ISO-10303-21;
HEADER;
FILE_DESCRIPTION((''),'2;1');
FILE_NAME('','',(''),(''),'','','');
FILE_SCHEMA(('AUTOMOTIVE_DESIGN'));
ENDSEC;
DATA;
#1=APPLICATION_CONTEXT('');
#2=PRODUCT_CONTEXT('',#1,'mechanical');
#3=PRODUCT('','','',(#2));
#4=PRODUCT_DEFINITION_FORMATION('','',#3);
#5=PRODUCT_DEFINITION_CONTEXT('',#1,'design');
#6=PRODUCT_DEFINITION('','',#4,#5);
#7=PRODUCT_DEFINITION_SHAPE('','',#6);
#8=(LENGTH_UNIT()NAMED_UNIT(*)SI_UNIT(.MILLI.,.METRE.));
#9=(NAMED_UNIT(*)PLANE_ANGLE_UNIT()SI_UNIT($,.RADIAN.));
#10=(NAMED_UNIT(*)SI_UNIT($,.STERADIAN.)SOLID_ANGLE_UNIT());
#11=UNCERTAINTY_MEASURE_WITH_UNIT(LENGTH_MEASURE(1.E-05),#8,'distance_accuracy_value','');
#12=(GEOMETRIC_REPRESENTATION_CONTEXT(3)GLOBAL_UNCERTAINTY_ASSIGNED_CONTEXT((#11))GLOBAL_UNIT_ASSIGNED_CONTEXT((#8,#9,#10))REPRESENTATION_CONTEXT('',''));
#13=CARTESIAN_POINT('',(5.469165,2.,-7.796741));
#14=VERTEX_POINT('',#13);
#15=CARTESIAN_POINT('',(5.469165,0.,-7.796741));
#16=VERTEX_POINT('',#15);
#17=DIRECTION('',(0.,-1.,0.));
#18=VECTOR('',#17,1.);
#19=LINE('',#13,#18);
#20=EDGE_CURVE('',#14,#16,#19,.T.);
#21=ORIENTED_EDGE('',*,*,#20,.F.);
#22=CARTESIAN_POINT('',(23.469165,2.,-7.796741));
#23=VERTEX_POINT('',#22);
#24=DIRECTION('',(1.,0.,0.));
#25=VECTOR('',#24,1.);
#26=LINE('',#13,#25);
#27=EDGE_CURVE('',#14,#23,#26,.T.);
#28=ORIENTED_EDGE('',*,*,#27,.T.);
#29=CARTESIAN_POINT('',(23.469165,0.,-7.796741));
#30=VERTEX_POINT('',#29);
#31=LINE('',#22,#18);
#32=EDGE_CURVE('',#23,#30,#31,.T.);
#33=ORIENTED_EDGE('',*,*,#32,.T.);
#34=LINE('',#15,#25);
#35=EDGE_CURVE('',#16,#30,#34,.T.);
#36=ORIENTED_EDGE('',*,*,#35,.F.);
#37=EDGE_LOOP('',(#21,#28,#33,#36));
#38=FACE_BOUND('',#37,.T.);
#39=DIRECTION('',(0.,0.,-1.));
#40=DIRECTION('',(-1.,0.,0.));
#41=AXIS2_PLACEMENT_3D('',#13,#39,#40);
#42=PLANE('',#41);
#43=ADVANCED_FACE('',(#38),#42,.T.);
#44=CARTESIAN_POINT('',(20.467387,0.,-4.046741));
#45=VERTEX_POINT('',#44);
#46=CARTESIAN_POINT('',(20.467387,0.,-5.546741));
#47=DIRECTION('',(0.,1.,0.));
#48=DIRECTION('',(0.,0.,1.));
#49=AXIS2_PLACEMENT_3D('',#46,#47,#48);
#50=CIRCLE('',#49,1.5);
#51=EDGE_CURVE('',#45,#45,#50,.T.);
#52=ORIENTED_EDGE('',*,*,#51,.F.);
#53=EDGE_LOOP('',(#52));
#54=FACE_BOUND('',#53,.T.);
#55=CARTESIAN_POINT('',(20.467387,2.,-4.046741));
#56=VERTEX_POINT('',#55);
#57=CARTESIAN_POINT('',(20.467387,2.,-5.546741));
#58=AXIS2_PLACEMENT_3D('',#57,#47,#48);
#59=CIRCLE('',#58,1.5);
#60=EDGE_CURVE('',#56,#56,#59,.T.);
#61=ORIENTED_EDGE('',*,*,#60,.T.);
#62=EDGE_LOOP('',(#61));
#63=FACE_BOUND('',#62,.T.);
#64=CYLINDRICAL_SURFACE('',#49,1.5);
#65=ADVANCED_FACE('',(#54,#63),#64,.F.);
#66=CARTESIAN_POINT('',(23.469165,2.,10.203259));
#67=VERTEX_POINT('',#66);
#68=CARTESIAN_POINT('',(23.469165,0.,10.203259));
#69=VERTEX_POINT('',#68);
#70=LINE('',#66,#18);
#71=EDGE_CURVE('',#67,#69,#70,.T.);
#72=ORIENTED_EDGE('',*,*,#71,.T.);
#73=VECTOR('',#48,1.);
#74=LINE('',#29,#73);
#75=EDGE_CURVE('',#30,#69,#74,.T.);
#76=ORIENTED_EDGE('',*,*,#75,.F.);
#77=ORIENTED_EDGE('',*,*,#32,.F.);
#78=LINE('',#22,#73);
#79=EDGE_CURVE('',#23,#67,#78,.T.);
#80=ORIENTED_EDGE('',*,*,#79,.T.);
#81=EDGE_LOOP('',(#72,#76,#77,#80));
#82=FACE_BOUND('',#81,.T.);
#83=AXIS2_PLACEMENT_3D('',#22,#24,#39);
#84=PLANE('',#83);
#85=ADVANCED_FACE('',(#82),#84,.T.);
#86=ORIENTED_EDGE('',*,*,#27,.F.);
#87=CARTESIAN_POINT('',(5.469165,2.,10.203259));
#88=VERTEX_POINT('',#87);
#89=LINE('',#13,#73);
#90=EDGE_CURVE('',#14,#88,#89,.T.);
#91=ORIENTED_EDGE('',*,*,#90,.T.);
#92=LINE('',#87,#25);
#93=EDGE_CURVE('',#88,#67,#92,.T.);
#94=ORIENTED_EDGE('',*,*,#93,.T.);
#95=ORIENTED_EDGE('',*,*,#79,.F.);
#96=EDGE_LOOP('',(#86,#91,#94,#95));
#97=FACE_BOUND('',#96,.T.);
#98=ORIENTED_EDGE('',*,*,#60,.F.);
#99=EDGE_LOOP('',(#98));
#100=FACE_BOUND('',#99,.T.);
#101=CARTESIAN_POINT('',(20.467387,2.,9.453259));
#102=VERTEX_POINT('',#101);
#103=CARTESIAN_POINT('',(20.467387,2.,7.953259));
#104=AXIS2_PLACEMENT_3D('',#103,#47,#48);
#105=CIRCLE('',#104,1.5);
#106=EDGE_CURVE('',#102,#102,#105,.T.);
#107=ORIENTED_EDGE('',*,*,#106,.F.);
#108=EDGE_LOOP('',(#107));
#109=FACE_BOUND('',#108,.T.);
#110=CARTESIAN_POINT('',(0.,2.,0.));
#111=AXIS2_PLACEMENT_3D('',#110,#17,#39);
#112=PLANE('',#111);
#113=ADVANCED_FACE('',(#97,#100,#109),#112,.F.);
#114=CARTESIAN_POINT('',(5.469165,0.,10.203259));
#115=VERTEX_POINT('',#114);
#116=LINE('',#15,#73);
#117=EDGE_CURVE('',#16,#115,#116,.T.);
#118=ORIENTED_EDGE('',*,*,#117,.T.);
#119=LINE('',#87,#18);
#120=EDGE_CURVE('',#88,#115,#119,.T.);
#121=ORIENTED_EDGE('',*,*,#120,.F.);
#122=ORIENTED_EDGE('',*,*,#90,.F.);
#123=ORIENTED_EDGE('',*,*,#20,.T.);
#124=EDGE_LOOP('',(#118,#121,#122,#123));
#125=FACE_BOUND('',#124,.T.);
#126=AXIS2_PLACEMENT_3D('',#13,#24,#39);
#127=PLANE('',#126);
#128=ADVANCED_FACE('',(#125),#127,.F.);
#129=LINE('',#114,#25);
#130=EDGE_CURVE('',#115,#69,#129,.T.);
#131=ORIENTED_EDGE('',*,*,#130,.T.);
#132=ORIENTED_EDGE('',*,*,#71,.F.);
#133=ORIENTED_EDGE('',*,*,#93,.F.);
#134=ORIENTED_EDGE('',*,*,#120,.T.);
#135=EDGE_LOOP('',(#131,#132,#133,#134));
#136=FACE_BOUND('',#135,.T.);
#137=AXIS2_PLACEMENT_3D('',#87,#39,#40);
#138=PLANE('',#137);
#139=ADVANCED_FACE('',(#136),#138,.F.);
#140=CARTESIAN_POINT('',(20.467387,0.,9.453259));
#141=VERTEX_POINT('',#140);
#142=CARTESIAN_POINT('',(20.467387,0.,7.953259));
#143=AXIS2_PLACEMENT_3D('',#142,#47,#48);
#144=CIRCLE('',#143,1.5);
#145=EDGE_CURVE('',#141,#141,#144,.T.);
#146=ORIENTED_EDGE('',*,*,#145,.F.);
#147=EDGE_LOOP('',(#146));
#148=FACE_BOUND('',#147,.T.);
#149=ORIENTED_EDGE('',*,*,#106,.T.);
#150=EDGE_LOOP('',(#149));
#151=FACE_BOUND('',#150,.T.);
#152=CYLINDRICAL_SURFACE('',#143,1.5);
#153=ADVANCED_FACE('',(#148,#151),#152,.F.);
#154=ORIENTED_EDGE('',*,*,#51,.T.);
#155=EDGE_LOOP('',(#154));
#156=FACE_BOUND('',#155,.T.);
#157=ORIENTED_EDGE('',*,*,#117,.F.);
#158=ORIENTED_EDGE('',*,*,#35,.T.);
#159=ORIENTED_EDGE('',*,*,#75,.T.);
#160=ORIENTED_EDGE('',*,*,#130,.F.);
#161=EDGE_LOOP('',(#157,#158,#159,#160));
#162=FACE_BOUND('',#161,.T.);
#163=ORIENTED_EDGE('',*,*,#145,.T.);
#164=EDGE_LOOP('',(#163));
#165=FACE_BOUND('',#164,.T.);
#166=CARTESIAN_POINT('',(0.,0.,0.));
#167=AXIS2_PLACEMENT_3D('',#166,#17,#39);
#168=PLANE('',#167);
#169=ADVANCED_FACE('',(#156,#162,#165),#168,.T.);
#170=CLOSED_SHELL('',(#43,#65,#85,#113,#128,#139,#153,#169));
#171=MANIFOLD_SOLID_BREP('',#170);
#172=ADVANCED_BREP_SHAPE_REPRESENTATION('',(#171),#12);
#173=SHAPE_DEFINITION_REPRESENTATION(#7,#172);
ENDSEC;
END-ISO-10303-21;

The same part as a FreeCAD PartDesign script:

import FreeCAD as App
import Part
import Sketcher
Q = App.Units.Quantity


def add_polygon(sketch, points):
    """Adds a closed chain of lines whose ends are joined by coincident constraints."""
    first, n = sketch.GeometryCount, len(points)
    for a, b in zip(points, points[1:] + points[:1]):
        sketch.addGeometry(Part.LineSegment(App.Vector(*a, 0), App.Vector(*b, 0)), False)
    for i in range(n):
        sketch.addConstraint(Sketcher.Constraint("Coincident", first + i, 2, first + (i + 1) % n, 1))

doc = App.newDocument("Part")
body = doc.addObject("PartDesign::Body", "Body")

# Sketch on XZ plane
sketch1 = doc.addObject("Sketcher::SketchObject", "Sketch")
body.addObject(sketch1)
sketch1.AttachmentSupport = (doc.XZ_Plane, [""])
sketch1.MapMode = "FlatFace"
add_polygon(sketch1, [(5, -8), (5, 10), (23, 10), (23, -8)])  # lines 0-3
sketch1.addConstraint(Sketcher.Constraint("Vertical", 0))
sketch1.addConstraint(Sketcher.Constraint("Horizontal", 1))
sketch1.addConstraint(Sketcher.Constraint("Vertical", 2))
sketch1.addConstraint(Sketcher.Constraint("Horizontal", 3))
sketch1.addConstraint(Sketcher.Constraint("Equal", 3, 0))
sketch1.addConstraint(Sketcher.Constraint("DistanceX", 1, 1, 1, 2, Q("18 mm")))
sketch1.addConstraint(Sketcher.Constraint("DistanceY", -1, 1, 0, 2, Q("10.203259 mm")))
sketch1.addConstraint(Sketcher.Constraint("DistanceX", -1, 1, 0, 2, Q("5.469165 mm")))
pad1 = doc.addObject("PartDesign::Pad", "Pad")
body.addObject(pad1)
pad1.Profile = sketch1
pad1.Length = 2
pad1.Reversed = True

# Sketch on XZ plane
sketch2 = doc.addObject("Sketcher::SketchObject", "Sketch001")
body.addObject(sketch2)
sketch2.AttachmentSupport = (doc.XZ_Plane, [""])
sketch2.MapMode = "FlatFace"
sketch2.AttachmentOffset = App.Placement(App.Vector(0, 0, -2), App.Rotation())
sketch2.addGeometry(Part.Circle(App.Vector(20.5, -5.5, 0), App.Vector(0, 0, 1), 1.5), False)
sketch2.addGeometry(Part.Circle(App.Vector(20.5, 8, 0), App.Vector(0, 0, 1), 1.5), False)
sketch2.addConstraint(Sketcher.Constraint("Equal", 0, 1))
sketch2.addConstraint(Sketcher.Constraint("Vertical", 0, 3, 1, 3))
sketch2.addConstraint(Sketcher.Constraint("Diameter", 0, Q("3 mm")))
sketch2.addConstraint(Sketcher.Constraint("DistanceY", 0, 3, 1, 3, Q("13.5 mm")))
sketch2.addConstraint(Sketcher.Constraint("DistanceY", 0, 3, -1, 1, Q("5.546741 mm")))
sketch2.addConstraint(Sketcher.Constraint("DistanceX", -1, 1, 0, 3, Q("20.467387 mm")))
pocket1 = doc.addObject("PartDesign::Pocket", "Pocket")
body.addObject(pocket1)
pocket1.Profile = sketch2
pocket1.Type = "ThroughAll"
pocket1.Reversed = True

doc.recompute()
